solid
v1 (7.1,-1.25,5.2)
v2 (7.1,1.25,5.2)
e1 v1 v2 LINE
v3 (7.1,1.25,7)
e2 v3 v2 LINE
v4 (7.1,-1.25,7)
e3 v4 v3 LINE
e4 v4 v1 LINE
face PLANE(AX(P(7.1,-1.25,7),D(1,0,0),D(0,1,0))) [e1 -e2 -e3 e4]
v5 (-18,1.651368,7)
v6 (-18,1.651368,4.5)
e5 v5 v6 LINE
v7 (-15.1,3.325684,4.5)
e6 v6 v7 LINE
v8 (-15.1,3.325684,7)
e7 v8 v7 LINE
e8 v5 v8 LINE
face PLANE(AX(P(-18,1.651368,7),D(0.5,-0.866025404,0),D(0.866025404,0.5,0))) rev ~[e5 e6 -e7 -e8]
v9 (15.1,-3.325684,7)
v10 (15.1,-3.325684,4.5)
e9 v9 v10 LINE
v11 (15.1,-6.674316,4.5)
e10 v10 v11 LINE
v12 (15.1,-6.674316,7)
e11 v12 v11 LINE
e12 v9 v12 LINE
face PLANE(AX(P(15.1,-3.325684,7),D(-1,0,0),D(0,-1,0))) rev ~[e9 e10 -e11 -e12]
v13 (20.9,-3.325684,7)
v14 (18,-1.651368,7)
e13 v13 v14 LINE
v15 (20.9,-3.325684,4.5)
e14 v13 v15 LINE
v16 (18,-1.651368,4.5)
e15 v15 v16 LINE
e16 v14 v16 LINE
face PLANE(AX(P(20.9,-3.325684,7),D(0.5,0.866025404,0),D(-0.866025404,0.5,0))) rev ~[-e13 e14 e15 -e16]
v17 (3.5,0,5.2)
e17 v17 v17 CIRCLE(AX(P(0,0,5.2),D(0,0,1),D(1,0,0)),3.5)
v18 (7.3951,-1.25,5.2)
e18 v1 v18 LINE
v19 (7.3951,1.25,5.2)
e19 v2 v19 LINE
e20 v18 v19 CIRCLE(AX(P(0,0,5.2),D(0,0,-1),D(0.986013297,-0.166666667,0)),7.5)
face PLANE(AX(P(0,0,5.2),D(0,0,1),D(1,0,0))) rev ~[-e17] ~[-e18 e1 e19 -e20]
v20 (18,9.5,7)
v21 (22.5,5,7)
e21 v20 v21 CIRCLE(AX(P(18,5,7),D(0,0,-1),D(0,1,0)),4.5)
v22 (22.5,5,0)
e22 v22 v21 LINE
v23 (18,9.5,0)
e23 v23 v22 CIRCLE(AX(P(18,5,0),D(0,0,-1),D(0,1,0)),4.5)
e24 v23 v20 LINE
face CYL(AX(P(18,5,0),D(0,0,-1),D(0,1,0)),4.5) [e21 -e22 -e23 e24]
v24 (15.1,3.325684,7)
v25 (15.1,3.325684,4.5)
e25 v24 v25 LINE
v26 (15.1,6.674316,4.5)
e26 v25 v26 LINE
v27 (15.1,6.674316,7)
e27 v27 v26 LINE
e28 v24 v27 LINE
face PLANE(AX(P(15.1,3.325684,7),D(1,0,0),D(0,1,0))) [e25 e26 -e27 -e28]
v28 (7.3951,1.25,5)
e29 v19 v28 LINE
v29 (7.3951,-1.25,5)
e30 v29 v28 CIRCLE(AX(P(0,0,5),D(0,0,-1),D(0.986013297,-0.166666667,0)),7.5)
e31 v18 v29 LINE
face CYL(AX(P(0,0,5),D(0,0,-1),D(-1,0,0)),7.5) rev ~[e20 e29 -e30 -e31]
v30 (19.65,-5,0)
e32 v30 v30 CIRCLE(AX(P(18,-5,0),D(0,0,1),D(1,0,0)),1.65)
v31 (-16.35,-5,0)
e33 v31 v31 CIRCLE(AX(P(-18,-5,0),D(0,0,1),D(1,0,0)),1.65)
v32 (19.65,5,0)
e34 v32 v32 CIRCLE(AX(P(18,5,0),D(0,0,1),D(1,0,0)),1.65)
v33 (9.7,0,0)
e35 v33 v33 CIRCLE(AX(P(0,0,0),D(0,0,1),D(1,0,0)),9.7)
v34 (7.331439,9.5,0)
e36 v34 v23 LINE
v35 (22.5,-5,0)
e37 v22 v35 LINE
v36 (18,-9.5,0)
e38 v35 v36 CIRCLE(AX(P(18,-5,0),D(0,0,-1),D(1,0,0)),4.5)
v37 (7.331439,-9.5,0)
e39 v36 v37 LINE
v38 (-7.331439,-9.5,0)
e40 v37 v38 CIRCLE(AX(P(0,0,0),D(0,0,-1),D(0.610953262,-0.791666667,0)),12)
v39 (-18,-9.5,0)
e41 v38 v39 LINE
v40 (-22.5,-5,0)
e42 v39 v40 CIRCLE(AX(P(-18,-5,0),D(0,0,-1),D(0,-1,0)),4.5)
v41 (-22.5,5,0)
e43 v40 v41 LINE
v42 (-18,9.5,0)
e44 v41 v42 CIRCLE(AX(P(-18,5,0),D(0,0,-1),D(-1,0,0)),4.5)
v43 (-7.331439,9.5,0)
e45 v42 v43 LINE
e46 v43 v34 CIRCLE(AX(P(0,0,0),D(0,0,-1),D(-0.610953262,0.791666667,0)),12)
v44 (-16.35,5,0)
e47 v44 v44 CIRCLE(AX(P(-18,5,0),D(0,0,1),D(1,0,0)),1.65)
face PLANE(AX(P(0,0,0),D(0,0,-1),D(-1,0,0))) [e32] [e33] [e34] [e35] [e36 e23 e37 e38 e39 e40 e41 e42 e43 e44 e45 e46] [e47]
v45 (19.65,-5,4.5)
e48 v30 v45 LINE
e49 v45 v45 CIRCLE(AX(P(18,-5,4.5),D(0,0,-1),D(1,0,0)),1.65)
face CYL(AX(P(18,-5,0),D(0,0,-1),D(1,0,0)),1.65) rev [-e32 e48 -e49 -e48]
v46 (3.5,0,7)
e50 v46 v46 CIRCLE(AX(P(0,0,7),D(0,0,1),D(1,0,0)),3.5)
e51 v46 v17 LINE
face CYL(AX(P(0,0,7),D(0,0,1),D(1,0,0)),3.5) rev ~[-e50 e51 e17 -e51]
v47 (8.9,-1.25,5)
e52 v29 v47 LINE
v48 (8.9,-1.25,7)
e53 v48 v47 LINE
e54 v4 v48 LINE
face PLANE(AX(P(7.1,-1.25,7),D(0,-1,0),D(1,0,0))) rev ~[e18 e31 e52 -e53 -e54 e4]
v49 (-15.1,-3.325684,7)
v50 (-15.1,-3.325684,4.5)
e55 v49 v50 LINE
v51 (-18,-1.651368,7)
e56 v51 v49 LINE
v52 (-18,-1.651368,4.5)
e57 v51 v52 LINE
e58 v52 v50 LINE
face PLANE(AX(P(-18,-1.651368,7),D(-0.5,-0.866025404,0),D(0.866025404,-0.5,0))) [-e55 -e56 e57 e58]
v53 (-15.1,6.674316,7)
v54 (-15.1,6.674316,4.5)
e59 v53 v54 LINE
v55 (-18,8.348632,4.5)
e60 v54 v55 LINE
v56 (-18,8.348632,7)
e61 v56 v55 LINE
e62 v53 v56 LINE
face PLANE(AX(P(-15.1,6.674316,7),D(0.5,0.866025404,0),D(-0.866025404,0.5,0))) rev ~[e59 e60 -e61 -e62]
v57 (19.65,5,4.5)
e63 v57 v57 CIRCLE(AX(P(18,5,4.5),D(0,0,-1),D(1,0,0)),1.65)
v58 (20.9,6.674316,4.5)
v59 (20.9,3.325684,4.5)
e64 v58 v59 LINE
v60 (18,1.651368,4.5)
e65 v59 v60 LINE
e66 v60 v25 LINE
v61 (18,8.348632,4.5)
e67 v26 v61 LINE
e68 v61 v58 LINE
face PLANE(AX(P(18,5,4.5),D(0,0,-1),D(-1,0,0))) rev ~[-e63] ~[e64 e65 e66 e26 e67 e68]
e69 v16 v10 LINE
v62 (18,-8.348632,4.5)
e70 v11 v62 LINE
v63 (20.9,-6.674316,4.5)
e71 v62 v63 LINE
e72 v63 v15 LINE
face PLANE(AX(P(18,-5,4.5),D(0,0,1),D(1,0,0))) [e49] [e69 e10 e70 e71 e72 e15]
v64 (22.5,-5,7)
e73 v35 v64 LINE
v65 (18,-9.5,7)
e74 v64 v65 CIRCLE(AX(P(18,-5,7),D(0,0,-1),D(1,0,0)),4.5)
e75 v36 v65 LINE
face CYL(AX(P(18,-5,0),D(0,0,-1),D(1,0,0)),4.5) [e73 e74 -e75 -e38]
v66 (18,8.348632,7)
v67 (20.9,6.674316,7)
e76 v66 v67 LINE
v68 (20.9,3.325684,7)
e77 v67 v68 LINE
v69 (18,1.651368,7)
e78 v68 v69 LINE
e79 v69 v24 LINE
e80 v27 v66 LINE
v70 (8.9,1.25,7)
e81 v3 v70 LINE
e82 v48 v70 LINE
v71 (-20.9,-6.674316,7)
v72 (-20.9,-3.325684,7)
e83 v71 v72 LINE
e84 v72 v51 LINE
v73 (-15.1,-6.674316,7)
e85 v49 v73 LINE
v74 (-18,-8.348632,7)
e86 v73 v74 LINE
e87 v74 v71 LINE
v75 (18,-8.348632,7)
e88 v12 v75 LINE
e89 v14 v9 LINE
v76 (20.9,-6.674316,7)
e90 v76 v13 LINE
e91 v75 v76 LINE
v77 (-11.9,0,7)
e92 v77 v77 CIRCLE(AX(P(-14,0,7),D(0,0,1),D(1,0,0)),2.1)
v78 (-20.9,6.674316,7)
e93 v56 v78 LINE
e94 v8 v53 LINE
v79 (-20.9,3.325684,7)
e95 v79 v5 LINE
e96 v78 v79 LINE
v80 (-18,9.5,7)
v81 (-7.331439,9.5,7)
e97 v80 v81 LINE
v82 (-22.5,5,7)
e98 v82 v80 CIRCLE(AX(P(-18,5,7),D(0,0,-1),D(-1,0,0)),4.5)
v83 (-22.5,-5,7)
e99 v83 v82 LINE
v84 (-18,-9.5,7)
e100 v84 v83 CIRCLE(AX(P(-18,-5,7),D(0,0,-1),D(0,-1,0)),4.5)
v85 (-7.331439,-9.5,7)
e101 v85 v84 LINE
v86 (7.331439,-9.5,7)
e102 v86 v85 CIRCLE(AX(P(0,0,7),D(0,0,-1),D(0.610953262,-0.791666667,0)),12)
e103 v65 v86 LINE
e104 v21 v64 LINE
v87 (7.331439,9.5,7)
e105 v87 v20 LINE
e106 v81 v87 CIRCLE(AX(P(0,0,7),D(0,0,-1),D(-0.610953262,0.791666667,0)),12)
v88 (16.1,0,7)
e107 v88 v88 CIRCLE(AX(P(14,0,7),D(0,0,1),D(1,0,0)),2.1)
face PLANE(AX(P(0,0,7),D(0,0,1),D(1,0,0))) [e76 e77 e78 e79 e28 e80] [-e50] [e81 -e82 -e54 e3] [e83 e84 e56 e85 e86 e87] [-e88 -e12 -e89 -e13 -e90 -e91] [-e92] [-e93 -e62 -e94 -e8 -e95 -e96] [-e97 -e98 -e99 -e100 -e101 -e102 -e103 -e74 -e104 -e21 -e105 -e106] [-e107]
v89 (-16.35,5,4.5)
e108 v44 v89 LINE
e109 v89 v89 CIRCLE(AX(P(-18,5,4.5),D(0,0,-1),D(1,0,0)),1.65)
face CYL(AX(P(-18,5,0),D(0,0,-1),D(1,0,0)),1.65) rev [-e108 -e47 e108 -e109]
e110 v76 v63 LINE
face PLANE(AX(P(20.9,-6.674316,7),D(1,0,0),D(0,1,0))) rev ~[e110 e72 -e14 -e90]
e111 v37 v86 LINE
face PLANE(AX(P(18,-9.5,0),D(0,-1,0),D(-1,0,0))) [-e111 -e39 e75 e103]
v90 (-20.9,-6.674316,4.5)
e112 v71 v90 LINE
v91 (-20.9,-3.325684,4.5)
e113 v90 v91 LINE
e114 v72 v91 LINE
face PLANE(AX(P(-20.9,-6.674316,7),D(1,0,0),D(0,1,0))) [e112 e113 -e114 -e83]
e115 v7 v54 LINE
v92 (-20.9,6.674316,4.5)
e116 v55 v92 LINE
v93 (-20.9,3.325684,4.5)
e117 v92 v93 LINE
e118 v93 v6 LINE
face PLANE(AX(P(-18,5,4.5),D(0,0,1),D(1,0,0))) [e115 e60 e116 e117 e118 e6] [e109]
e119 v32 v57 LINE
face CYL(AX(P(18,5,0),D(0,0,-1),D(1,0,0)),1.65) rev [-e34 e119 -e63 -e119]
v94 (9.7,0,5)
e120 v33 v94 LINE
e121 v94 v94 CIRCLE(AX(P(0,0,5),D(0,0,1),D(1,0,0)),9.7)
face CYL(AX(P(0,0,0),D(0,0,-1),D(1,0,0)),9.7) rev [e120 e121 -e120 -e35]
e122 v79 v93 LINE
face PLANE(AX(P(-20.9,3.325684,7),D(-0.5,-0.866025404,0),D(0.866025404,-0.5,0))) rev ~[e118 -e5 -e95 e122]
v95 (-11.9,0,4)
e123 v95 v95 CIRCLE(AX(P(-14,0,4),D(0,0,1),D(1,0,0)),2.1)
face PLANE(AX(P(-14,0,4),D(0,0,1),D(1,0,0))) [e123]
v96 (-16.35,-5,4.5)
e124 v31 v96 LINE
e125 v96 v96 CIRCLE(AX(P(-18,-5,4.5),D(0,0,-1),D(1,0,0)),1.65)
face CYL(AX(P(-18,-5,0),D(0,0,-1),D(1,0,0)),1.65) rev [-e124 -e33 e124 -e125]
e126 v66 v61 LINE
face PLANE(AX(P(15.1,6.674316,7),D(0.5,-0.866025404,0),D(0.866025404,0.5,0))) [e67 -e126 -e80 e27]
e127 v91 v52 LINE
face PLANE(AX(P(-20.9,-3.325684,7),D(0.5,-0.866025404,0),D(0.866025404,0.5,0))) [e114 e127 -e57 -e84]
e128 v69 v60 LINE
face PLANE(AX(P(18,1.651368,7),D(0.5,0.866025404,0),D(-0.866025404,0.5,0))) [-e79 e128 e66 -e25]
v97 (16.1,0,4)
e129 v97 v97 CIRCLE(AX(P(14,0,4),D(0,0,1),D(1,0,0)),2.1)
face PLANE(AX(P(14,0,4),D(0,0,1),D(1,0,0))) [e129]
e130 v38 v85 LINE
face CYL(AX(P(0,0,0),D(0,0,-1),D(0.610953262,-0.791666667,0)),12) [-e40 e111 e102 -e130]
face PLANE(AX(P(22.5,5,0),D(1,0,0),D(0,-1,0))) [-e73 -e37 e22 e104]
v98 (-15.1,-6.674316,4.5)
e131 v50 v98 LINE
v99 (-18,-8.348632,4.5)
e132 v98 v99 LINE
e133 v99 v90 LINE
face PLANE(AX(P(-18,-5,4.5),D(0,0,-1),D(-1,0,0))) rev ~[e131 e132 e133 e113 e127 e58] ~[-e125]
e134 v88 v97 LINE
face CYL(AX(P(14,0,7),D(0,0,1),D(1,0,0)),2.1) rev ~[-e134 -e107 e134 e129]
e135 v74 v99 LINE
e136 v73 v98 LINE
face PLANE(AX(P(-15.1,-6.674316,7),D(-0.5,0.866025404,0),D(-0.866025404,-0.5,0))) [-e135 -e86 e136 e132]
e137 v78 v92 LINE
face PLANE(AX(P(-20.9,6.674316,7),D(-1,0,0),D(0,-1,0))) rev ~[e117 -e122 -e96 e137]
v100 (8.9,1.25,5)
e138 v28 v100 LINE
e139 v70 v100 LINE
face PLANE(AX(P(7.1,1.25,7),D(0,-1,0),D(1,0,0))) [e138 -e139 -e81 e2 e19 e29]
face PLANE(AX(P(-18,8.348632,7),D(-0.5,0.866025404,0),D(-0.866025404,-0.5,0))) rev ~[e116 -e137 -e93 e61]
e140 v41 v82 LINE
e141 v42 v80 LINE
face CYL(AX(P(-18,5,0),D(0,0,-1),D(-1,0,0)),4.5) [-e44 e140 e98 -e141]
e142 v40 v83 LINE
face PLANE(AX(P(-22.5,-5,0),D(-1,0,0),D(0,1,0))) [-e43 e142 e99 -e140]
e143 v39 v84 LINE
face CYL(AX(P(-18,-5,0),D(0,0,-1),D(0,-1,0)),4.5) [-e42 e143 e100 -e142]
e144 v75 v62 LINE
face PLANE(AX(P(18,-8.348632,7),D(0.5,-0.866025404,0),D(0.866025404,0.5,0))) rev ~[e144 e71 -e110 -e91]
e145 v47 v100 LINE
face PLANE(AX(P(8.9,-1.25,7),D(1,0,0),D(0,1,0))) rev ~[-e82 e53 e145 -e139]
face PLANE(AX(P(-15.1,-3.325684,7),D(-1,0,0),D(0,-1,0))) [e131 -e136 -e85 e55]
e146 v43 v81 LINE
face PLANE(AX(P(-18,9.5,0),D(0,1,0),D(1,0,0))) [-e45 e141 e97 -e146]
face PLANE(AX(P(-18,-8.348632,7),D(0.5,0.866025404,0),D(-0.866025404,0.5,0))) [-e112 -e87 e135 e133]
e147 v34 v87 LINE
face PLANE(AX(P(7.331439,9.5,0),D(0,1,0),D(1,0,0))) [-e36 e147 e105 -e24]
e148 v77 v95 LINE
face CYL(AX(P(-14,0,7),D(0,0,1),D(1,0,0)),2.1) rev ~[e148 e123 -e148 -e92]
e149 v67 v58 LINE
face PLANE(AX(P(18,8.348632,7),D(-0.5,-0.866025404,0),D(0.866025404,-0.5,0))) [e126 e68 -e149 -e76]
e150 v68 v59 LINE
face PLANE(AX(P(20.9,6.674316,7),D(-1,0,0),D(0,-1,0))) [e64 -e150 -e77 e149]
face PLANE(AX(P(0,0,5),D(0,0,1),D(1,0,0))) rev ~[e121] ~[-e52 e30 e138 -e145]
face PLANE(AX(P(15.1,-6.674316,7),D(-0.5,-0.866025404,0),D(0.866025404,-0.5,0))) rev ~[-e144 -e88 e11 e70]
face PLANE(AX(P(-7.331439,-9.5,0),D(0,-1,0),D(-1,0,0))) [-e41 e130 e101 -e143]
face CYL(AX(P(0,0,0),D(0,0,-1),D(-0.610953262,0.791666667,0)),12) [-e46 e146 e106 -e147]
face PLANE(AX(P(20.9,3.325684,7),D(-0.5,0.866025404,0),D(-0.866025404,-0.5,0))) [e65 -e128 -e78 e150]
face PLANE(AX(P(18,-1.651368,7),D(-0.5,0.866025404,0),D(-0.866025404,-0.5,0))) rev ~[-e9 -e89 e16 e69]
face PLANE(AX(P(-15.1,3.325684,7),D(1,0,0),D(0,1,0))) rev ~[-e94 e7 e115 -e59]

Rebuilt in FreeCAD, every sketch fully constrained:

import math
import FreeCAD as App
import Part
import Sketcher

V = App.Vector
Q = App.Units.Quantity


def add_polygon(sketch, points):
    """Adds a closed chain of lines whose ends are joined by coincident constraints."""
    first, n = sketch.GeometryCount, len(points)
    for a, b in zip(points, points[1:] + points[:1]):
        sketch.addGeometry(Part.LineSegment(App.Vector(*a, 0), App.Vector(*b, 0)), False)
    for i in range(n):
        sketch.addConstraint(Sketcher.Constraint("Coincident", first + i, 2, first + (i + 1) % n, 1))

doc = App.newDocument("Part")
body = doc.addObject("PartDesign::Body", "Body")

# Sketch on XY plane
sketch1 = doc.addObject("Sketcher::SketchObject", "Sketch")
body.addObject(sketch1)
sketch1.AttachmentSupport = (doc.XY_Plane, [""])
sketch1.MapMode = "FlatFace"
sketch1.addGeometry([
    Part.LineSegment(V(-7.331439, 9.5, 0), V(-18, 9.5, 0)),  # 0
    Part.ArcOfCircle(Part.Circle(V(-18, 5, 0), V(0, 0, 1), 4.5), math.radians(90), math.radians(180)),  # 1
    Part.LineSegment(V(-22.5, 5, 0), V(-22.5, -5, 0)),  # 2
    Part.ArcOfCircle(Part.Circle(V(-18, -5, 0), V(0, 0, 1), 4.5), math.radians(-180), math.radians(-90)),  # 3
    Part.LineSegment(V(-18, -9.5, 0), V(-7.331439, -9.5, 0)),  # 4
    Part.ArcOfCircle(Part.Circle(V(0, 0, 0), V(0, 0, 1), 12), math.radians(-127.658462), math.radians(-52.341538)),  # 5
    Part.LineSegment(V(7.331439, -9.5, 0), V(18, -9.5, 0)),  # 6
    Part.ArcOfCircle(Part.Circle(V(18, -5, 0), V(0, 0, 1), 4.5), math.radians(-90), math.radians(0)),  # 7
    Part.LineSegment(V(22.5, -5, 0), V(22.5, 5, 0)),  # 8
    Part.ArcOfCircle(Part.Circle(V(18, 5, 0), V(0, 0, 1), 4.5), math.radians(0), math.radians(90)),  # 9
    Part.LineSegment(V(18, 9.5, 0), V(7.331439, 9.5, 0)),  # 10
    Part.ArcOfCircle(Part.Circle(V(0, 0, 0), V(0, 0, 1), 12), math.radians(52.341538), math.radians(127.658462)),  # 11
    Part.Circle(V(18, -5, 0), V(0, 0, 1), 1.65),  # 12
    Part.Circle(V(-18, -5, 0), V(0, 0, 1), 1.65),  # 13
    Part.Circle(V(18, 5, 0), V(0, 0, 1), 1.65),  # 14
    Part.Circle(V(-18, 5, 0), V(0, 0, 1), 1.65),  # 15
], False)
sketch1.addConstraint([
    Sketcher.Constraint("Tangent", 0, 2, 1, 1),
    Sketcher.Constraint("Tangent", 1, 2, 2, 1),
    Sketcher.Constraint("Tangent", 2, 2, 3, 1),
    Sketcher.Constraint("Tangent", 3, 2, 4, 1),
    Sketcher.Constraint("Coincident", 4, 2, 5, 1),
    Sketcher.Constraint("Coincident", 5, 2, 6, 1),
    Sketcher.Constraint("Tangent", 6, 2, 7, 1),
    Sketcher.Constraint("Tangent", 7, 2, 8, 1),
    Sketcher.Constraint("Tangent", 8, 2, 9, 1),
    Sketcher.Constraint("Tangent", 9, 2, 10, 1),
    Sketcher.Constraint("Coincident", 10, 2, 11, 1),
    Sketcher.Constraint("Coincident", 11, 2, 0, 1),
    Sketcher.Constraint("Horizontal", 0),
    Sketcher.Constraint("Vertical", 2),
    Sketcher.Constraint("Horizontal", 4),
    Sketcher.Constraint("Horizontal", 6),
    Sketcher.Constraint("Vertical", 8),
    Sketcher.Constraint("Horizontal", 10),
    Sketcher.Constraint("Coincident", 5, 3, -1, 1),
    Sketcher.Constraint("Coincident", 11, 3, -1, 1),
    Sketcher.Constraint("Coincident", 12, 3, 7, 3),
    Sketcher.Constraint("Coincident", 13, 3, 3, 3),
    Sketcher.Constraint("Coincident", 14, 3, 9, 3),
    Sketcher.Constraint("Coincident", 15, 3, 1, 3),
    Sketcher.Constraint("Equal", 1, 3),
    Sketcher.Constraint("Equal", 3, 7),
    Sketcher.Constraint("Equal", 7, 9),
    Sketcher.Constraint("Equal", 5, 11),
    Sketcher.Constraint("Equal", 12, 13),
    Sketcher.Constraint("Equal", 13, 14),
    Sketcher.Constraint("Equal", 14, 15),
    Sketcher.Constraint("Symmetric", 1, 3, 7, 3, -1, 1),
    Sketcher.Constraint("Horizontal", 3, 3, 7, 3),
    Sketcher.Constraint("Horizontal", 1, 3, 9, 3),
    Sketcher.Constraint("Radius", 5, Q("12 mm")),
    Sketcher.Constraint("Diameter", 12, Q("3.3 mm")),
    Sketcher.Constraint("Radius", 1, Q("4.5 mm")),
    Sketcher.Constraint("DistanceY", 2, 2, 2, 1, Q("10 mm")),
    Sketcher.Constraint("DistanceX", 1, 3, -1, 1, Q("18 mm")),
])
pad1 = doc.addObject("PartDesign::Pad", "Pad")
body.addObject(pad1)
pad1.Profile = sketch1
pad1.Length = 7

# Sketch on XY plane
sketch2 = doc.addObject("Sketcher::SketchObject", "Sketch001")
body.addObject(sketch2)
sketch2.AttachmentSupport = (doc.XY_Plane, [""])
sketch2.MapMode = "FlatFace"
sketch2.addGeometry(Part.Circle(V(0, 0, 0), V(0, 0, 1), 9.7), False)
sketch2.addConstraint([
    Sketcher.Constraint("Coincident", 0, 3, -1, 1),
    Sketcher.Constraint("Diameter", 0, Q("19.4 mm")),
])
pocket1 = doc.addObject("PartDesign::Pocket", "Pocket")
body.addObject(pocket1)
pocket1.Profile = sketch2
pocket1.Length = 5
pocket1.Reversed = True

# Sketch on XY plane
sketch3 = doc.addObject("Sketcher::SketchObject", "Sketch002")
body.addObject(sketch3)
sketch3.AttachmentSupport = (doc.XY_Plane, [""])
sketch3.MapMode = "FlatFace"
sketch3.AttachmentOffset = App.Placement(V(0, 0, 5), App.Rotation())
sketch3.addGeometry(Part.Circle(V(0, 0, 0), V(0, 0, 1), 7.5), False)
sketch3.addConstraint([
    Sketcher.Constraint("Coincident", 0, 3, -1, 1),
    Sketcher.Constraint("Diameter", 0, Q("15 mm")),
])
pocket2 = doc.addObject("PartDesign::Pocket", "Pocket001")
body.addObject(pocket2)
pocket2.Profile = sketch3
pocket2.Length = 5
pocket2.Reversed = True

# Sketch on XY plane
sketch4 = doc.addObject("Sketcher::SketchObject", "Sketch003")
body.addObject(sketch4)
sketch4.AttachmentSupport = (doc.XY_Plane, [""])
sketch4.MapMode = "FlatFace"
sketch4.AttachmentOffset = App.Placement(V(0, 0, 7), App.Rotation())
add_polygon(sketch4, [(-18, 8.348632), (-20.9, 6.674316), (-20.9, 3.325684), (-18, 1.651368), (-15.1, 3.325684), (-15.1, 6.674316)])  # lines 0-5
add_polygon(sketch4, [(18, 8.348632), (15.1, 6.674316), (15.1, 3.325684), (18, 1.651368), (20.9, 3.325684), (20.9, 6.674316)])  # lines 6-11
add_polygon(sketch4, [(15.1, -3.325684), (15.1, -6.674316), (18, -8.348632), (20.9, -6.674316), (20.9, -3.325684), (18, -1.651368)])  # lines 12-17
add_polygon(sketch4, [(-18, -8.348632), (-15.1, -6.674316), (-15.1, -3.325684), (-18, -1.651368), (-20.9, -3.325684), (-20.9, -6.674316)])  # lines 18-23
sketch4.addConstraint([
    Sketcher.Constraint("Vertical", 1),
    Sketcher.Constraint("Vertical", 4),
    Sketcher.Constraint("Vertical", 7),
    Sketcher.Constraint("Vertical", 10),
    Sketcher.Constraint("Vertical", 12),
    Sketcher.Constraint("Vertical", 15),
    Sketcher.Constraint("Vertical", 19),
    Sketcher.Constraint("Vertical", 22),
    Sketcher.Constraint("Symmetric", 4, 2, 12, 2, -1, 1),
    Sketcher.Constraint("Symmetric", 5, 2, 13, 2, -1, 1),
    Sketcher.Constraint("Symmetric", 0, 2, 14, 2, -1, 1),
    Sketcher.Constraint("Symmetric", 2, 2, 16, 2, -1, 1),
    Sketcher.Constraint("Symmetric", 6, 2, 18, 2, -1, 1),
    Sketcher.Constraint("Symmetric", 8, 2, 20, 2, -1, 1),
    Sketcher.Constraint("Symmetric", 9, 2, 21, 2, -1, 1),
    Sketcher.Constraint("Symmetric", 11, 2, 23, 2, -1, 1),
    Sketcher.Constraint("Symmetric", 4, 2, 6, 2, -2),
    Sketcher.Constraint("Symmetric", 2, 2, 8, 2, -2),
    Sketcher.Constraint("Symmetric", 1, 2, 9, 2, -2),
    Sketcher.Constraint("Symmetric", 5, 2, 11, 2, -2),
    Sketcher.Constraint("Parallel", 0, 3),
    Sketcher.Constraint("Parallel", 2, 5),
    Sketcher.Constraint("Parallel", 3, 6),
    Sketcher.Constraint("Parallel", 5, 8),
    Sketcher.Constraint("Parallel", 8, 11),
    Sketcher.Constraint("Parallel", 13, 16),
    Sketcher.Constraint("Parallel", 14, 17),
    Sketcher.Constraint("Parallel", 16, 20),
    Sketcher.Constraint("Parallel", 20, 23),
    Sketcher.Constraint("Horizontal", 1, 2, 3, 2),
    Sketcher.Constraint("Horizontal", 0, 2, 4, 2),
    Sketcher.Constraint("Angle", 0, Q("-150 deg")),
    Sketcher.Constraint("DistanceX", 2, 2, -1, 1, Q("18 mm")),
    Sketcher.Constraint("DistanceY", 12, 2, 7, 2, Q("10 mm")),
    Sketcher.Constraint("DistanceX", 0, 2, -1, 1, Q("20.9 mm")),
    Sketcher.Constraint("DistanceY", 1, 2, 1, 1, Q("3.348632 mm")),
])
pocket3 = doc.addObject("PartDesign::Pocket", "Pocket002")
body.addObject(pocket3)
pocket3.Profile = sketch4
pocket3.Length = 2.5

# Sketch on XY plane
sketch5 = doc.addObject("Sketcher::SketchObject", "Sketch004")
body.addObject(sketch5)
sketch5.AttachmentSupport = (doc.XY_Plane, [""])
sketch5.MapMode = "FlatFace"
sketch5.AttachmentOffset = App.Placement(V(0, 0, 7), App.Rotation())
sketch5.addGeometry([
    Part.Circle(V(0, 0, 0), V(0, 0, 1), 7.5),
    Part.Circle(V(0, 0, 0), V(0, 0, 1), 3.5),
], False)
sketch5.addConstraint([
    Sketcher.Constraint("Coincident", 0, 3, -1, 1),
    Sketcher.Constraint("Coincident", 1, 3, -1, 1),
    Sketcher.Constraint("Diameter", 0, Q("15 mm")),
    Sketcher.Constraint("Diameter", 1, Q("7 mm")),
])
pad2 = doc.addObject("PartDesign::Pad", "Pad001")
body.addObject(pad2)
pad2.Profile = sketch5
pad2.Length = 1.8
pad2.Reversed = True

# Sketch on XY plane
sketch6 = doc.addObject("Sketcher::SketchObject", "Sketch005")
body.addObject(sketch6)
sketch6.AttachmentSupport = (doc.XY_Plane, [""])
sketch6.MapMode = "FlatFace"
sketch6.AttachmentOffset = App.Placement(V(0, 0, 7), App.Rotation())
add_polygon(sketch6, [(7.1, 1.25), (7.1, -1.25), (8.9, -1.25), (8.9, 1.25)])  # lines 0-3
sketch6.addConstraint([
    Sketcher.Constraint("Vertical", 0),
    Sketcher.Constraint("Horizontal", 1),
    Sketcher.Constraint("Vertical", 2),
    Sketcher.Constraint("Horizontal", 3),
    Sketcher.Constraint("DistanceX", 1, 1, 1, 2, Q("1.8 mm")),
    Sketcher.Constraint("DistanceY", 0, 2, 0, 1, Q("2.5 mm")),
    Sketcher.Constraint("DistanceX", -1, 1, 0, 2, Q("7.1 mm")),
    Sketcher.Constraint("DistanceY", 0, 2, -1, 1, Q("1.25 mm")),
])
pocket4 = doc.addObject("PartDesign::Pocket", "Pocket003")
body.addObject(pocket4)
pocket4.Profile = sketch6
pocket4.Length = 2.5

# Sketch on XY plane
sketch7 = doc.addObject("Sketcher::SketchObject", "Sketch006")
body.addObject(sketch7)
sketch7.AttachmentSupport = (doc.XY_Plane, [""])
sketch7.MapMode = "FlatFace"
sketch7.AttachmentOffset = App.Placement(V(0, 0, 7), App.Rotation())
sketch7.addGeometry([
    Part.Circle(V(-14, 0, 0), V(0, 0, 1), 2.1),
    Part.Circle(V(14, 0, 0), V(0, 0, 1), 2.1),
], False)
sketch7.addConstraint([
    Sketcher.Constraint("Equal", 0, 1),
    Sketcher.Constraint("Symmetric", 0, 3, 1, 3, -1, 1),
    Sketcher.Constraint("PointOnObject", 0, 3, -1),
    Sketcher.Constraint("Diameter", 0, Q("4.2 mm")),
    Sketcher.Constraint("DistanceX", 0, 3, -1, 1, Q("14 mm")),
])
pocket5 = doc.addObject("PartDesign::Pocket", "Pocket004")
body.addObject(pocket5)
pocket5.Profile = sketch7
pocket5.Length = 3

doc.recompute()
